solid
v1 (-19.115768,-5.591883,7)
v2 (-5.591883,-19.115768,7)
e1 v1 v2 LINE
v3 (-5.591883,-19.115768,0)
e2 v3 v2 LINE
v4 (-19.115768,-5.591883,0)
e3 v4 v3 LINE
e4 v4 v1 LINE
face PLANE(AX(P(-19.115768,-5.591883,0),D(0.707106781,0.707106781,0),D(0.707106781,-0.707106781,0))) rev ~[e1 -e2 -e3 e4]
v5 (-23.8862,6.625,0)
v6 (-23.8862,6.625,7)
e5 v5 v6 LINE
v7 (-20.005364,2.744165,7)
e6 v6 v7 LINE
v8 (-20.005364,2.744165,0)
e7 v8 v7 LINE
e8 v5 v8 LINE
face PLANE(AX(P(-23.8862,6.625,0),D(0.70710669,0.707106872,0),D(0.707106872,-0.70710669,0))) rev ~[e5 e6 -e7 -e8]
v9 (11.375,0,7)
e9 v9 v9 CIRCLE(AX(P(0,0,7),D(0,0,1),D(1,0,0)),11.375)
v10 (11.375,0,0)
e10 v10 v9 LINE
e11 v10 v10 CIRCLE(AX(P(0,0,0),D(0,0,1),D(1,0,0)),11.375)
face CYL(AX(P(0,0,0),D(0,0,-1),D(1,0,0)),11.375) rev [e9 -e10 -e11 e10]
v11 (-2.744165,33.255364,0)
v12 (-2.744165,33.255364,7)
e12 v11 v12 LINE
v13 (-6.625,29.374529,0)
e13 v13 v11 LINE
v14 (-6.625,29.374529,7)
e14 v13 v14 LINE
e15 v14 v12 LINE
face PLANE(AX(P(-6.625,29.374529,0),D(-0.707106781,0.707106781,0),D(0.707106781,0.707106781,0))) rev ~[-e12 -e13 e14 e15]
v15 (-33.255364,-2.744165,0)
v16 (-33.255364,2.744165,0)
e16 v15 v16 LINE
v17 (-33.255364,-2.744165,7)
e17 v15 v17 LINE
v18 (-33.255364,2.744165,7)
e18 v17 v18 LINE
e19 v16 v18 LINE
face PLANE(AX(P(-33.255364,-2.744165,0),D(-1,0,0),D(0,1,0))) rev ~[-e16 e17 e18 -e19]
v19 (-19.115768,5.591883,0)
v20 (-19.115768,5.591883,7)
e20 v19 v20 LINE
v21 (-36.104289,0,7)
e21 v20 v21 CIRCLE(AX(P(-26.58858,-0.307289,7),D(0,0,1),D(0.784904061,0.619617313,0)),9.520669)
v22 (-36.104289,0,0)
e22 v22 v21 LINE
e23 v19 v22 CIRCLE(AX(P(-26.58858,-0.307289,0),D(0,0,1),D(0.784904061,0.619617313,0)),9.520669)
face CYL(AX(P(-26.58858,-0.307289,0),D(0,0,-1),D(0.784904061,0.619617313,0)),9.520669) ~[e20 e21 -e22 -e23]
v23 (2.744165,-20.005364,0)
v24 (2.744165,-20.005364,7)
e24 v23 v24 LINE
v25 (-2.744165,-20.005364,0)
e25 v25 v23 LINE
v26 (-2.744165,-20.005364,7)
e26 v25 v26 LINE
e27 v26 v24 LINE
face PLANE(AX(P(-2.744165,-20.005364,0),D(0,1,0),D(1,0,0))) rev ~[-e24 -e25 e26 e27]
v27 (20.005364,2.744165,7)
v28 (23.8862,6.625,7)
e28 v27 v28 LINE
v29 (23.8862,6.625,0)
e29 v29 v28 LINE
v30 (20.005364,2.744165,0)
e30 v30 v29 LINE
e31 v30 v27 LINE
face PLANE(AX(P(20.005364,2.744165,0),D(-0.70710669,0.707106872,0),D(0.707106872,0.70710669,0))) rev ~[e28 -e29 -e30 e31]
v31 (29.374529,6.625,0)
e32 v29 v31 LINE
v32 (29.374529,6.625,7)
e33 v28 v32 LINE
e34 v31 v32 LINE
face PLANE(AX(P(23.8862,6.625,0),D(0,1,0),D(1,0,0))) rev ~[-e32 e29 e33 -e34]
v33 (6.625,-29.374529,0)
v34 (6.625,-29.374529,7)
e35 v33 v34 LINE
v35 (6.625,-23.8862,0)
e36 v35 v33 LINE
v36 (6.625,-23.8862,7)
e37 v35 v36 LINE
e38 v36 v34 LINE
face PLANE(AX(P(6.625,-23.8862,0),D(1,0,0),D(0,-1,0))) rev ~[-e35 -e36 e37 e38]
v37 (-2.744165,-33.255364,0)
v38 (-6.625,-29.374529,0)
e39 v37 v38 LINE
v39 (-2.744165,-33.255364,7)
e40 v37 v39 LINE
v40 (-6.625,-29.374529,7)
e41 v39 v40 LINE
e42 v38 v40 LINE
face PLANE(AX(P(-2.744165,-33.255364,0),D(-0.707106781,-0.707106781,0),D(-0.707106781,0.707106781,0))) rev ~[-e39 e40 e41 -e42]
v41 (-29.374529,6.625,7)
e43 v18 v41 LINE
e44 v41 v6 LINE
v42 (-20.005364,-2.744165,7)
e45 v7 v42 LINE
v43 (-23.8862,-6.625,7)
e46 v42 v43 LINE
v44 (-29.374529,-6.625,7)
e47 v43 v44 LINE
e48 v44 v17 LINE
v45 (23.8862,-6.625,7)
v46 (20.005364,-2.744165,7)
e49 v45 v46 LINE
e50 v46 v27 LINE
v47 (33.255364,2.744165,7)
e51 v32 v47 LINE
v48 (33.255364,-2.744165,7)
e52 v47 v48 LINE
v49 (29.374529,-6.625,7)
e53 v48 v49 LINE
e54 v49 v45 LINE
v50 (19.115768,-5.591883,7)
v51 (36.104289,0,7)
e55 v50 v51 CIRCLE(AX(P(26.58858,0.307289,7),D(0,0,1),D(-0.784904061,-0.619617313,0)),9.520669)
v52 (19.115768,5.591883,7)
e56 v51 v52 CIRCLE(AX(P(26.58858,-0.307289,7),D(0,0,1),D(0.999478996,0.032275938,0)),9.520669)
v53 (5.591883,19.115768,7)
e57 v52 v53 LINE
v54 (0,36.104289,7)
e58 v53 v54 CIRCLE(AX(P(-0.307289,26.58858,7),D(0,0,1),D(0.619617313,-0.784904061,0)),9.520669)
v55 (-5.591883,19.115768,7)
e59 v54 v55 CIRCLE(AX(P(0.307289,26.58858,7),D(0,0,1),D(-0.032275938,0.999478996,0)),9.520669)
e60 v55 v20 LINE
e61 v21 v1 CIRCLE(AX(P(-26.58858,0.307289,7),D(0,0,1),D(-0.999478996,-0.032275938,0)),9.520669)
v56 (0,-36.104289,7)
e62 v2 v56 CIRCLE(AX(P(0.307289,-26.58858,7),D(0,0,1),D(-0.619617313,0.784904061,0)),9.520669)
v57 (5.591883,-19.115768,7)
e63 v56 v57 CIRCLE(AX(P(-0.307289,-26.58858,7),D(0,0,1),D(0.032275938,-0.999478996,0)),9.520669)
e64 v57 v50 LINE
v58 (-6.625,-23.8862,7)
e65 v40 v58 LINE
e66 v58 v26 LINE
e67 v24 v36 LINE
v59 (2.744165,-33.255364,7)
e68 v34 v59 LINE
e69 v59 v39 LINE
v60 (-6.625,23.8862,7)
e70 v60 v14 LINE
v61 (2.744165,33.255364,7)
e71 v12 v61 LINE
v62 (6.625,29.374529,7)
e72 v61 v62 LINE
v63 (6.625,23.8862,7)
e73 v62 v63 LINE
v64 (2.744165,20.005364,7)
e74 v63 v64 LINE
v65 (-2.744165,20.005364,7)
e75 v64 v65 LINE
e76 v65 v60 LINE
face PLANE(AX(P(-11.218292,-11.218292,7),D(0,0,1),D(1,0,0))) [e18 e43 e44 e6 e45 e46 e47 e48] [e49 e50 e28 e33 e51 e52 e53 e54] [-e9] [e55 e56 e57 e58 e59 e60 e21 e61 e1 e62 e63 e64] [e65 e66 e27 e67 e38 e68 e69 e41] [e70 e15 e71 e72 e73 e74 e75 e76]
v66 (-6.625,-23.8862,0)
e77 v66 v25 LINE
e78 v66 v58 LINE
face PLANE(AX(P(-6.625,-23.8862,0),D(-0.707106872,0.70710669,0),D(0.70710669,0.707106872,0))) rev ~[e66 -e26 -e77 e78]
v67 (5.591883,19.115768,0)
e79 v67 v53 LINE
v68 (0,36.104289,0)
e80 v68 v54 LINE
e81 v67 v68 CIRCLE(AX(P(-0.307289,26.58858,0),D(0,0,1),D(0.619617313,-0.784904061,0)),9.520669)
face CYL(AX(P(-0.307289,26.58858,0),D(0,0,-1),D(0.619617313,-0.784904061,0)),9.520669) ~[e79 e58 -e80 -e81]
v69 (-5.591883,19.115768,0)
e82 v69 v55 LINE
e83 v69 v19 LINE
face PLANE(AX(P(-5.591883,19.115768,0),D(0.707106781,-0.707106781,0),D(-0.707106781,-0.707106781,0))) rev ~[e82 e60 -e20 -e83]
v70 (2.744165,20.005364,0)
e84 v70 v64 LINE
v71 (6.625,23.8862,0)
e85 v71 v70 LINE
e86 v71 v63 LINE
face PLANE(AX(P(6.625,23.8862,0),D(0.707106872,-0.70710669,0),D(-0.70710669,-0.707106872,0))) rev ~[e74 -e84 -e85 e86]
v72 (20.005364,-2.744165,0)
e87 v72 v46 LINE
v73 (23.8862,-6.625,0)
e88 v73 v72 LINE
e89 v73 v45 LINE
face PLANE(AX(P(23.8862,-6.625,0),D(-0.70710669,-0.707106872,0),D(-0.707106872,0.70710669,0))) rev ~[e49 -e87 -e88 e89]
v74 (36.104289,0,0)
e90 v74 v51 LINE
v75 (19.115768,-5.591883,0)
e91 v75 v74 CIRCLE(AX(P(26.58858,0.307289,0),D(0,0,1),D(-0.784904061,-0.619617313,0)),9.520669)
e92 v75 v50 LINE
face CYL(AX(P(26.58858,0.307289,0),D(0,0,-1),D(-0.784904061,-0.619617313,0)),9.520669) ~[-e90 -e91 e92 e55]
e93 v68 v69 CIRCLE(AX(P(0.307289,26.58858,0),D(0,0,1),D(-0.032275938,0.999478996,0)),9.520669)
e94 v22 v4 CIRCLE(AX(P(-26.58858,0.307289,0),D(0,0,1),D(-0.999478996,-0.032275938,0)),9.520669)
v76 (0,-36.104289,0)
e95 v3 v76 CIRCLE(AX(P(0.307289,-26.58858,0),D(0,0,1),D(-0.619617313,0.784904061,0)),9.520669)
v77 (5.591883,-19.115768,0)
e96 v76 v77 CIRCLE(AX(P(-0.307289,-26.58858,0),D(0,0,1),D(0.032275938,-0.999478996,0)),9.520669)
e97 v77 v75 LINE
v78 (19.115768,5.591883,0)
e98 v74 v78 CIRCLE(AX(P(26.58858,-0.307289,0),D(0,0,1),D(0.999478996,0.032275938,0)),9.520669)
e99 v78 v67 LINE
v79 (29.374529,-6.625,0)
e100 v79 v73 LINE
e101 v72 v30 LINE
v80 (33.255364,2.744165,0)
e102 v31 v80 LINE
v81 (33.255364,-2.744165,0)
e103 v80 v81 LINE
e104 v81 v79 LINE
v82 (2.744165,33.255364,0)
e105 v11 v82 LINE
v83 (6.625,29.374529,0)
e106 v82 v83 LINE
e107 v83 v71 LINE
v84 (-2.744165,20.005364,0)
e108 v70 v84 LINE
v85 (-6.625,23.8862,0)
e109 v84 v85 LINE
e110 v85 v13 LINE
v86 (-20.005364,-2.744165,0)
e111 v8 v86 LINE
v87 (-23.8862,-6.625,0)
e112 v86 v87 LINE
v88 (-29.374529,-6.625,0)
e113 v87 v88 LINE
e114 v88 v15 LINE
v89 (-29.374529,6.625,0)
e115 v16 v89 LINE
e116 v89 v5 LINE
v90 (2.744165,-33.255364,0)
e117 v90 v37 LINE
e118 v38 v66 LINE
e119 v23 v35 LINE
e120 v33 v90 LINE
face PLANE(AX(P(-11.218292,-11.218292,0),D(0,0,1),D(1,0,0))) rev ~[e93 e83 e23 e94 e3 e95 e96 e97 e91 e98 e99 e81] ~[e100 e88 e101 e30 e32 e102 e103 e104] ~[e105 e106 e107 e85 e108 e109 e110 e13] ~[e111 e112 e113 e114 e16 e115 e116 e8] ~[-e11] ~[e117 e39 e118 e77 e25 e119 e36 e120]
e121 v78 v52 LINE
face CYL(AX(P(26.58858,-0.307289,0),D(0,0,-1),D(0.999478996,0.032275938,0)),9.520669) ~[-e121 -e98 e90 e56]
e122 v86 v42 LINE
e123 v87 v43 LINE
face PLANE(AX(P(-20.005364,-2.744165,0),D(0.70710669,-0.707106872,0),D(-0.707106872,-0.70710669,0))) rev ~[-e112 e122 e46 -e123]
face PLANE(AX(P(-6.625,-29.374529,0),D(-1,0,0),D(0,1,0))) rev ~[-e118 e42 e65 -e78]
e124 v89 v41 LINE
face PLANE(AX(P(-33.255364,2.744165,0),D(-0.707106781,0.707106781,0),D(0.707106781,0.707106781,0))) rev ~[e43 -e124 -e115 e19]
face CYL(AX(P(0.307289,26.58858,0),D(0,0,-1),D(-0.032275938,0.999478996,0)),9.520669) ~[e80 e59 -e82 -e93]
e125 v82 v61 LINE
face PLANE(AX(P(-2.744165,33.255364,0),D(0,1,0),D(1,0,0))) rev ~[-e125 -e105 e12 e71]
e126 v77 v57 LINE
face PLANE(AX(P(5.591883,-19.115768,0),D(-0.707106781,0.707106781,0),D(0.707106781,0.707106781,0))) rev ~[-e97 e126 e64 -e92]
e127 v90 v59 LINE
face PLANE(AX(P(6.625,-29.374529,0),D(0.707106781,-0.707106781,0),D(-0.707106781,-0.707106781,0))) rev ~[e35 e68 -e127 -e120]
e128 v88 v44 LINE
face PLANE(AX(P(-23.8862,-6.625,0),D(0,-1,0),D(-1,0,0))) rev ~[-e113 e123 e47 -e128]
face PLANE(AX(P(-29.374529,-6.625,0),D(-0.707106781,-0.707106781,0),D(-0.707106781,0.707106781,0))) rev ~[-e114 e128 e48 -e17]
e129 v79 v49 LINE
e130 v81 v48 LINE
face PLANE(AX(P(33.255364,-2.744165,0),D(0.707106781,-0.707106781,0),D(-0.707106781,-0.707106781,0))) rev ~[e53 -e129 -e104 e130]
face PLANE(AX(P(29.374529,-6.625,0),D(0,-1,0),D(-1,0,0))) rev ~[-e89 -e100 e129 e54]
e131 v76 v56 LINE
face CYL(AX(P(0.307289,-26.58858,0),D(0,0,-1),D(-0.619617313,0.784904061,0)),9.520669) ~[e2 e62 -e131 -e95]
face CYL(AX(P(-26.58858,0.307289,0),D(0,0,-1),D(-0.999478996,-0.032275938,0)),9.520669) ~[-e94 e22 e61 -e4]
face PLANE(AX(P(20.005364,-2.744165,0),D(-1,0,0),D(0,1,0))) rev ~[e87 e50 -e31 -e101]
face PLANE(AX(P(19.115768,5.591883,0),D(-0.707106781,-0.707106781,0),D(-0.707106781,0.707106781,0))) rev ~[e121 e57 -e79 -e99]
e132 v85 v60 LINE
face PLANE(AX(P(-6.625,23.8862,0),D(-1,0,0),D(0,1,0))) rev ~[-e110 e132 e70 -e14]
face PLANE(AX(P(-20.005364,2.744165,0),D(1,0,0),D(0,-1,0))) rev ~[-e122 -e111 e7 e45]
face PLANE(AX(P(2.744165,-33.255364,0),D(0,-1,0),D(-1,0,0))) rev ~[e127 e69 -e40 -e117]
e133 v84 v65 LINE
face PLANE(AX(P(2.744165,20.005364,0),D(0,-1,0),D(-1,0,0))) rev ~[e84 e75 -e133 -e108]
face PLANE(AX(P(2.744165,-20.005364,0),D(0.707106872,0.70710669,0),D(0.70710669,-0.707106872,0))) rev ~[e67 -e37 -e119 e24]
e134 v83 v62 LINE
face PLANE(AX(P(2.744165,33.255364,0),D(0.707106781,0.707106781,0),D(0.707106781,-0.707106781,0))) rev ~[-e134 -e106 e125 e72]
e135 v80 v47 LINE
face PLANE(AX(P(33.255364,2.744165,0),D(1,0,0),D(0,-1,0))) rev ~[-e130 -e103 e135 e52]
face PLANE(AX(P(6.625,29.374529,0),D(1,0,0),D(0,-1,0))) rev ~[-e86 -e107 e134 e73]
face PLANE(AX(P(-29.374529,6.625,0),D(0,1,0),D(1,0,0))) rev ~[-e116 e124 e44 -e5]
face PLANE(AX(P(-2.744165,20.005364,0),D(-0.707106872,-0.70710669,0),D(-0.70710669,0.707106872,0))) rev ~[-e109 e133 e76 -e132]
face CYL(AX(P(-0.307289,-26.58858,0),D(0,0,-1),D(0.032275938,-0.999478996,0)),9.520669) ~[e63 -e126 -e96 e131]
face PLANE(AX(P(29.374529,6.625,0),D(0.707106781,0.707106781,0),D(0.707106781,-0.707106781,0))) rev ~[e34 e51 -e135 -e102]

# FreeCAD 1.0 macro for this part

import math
import FreeCAD as App
import Part
import Sketcher


def add_polygon(sketch, points):
    """Adds a closed chain of lines whose ends are joined by coincident constraints."""
    first, n = sketch.GeometryCount, len(points)
    for a, b in zip(points, points[1:] + points[:1]):
        sketch.addGeometry(Part.LineSegment(App.Vector(*a, 0), App.Vector(*b, 0)), False)
    for i in range(n):
        sketch.addConstraint(Sketcher.Constraint("Coincident", first + i, 2, first + (i + 1) % n, 1))

doc = App.newDocument("Part")
body = doc.addObject("PartDesign::Body", "Body")

# Sketch on XY plane
sketch1 = body.newObject("Sketcher::SketchObject", "Sketch")
sketch1.AttachmentSupport = (doc.getObject("XY_Plane"), [""])
sketch1.MapMode = "FlatFace"
sketch1.addGeometry(Part.LineSegment(App.Vector(5.591883, -19.115768, 0), App.Vector(19.115768, -5.591883, 0)), False)  # 0
sketch1.addGeometry(Part.ArcOfCircle(Part.Circle(App.Vector(26.58858, 0.307289, 0), App.Vector(0, 0, 1), 9.520669), math.radians(-141.711806), math.radians(-1.849596)), False)  # 1
sketch1.addGeometry(Part.ArcOfCircle(Part.Circle(App.Vector(26.58858, -0.307289, 0), App.Vector(0, 0, 1), 9.520669), math.radians(1.849596), math.radians(141.711806)), False)  # 2
sketch1.addGeometry(Part.LineSegment(App.Vector(19.115768, 5.591883, 0), App.Vector(5.591883, 19.115768, 0)), False)  # 3
sketch1.addGeometry(Part.ArcOfCircle(Part.Circle(App.Vector(-0.307289, 26.58858, 0), App.Vector(0, 0, 1), 9.520669), math.radians(-51.711806), math.radians(88.150404)), False)  # 4
sketch1.addGeometry(Part.ArcOfCircle(Part.Circle(App.Vector(0.307289, 26.58858, 0), App.Vector(0, 0, 1), 9.520669), math.radians(91.849596), math.radians(231.711806)), False)  # 5
sketch1.addGeometry(Part.LineSegment(App.Vector(-5.591883, 19.115768, 0), App.Vector(-19.115768, 5.591883, 0)), False)  # 6
sketch1.addGeometry(Part.ArcOfCircle(Part.Circle(App.Vector(-26.58858, -0.307289, 0), App.Vector(0, 0, 1), 9.520669), math.radians(38.288194), math.radians(178.150404)), False)  # 7
sketch1.addGeometry(Part.ArcOfCircle(Part.Circle(App.Vector(-26.58858, 0.307289, 0), App.Vector(0, 0, 1), 9.520669), math.radians(-178.150404), math.radians(-38.288194)), False)  # 8
sketch1.addGeometry(Part.LineSegment(App.Vector(-19.115768, -5.591883, 0), App.Vector(-5.591883, -19.115768, 0)), False)  # 9
sketch1.addGeometry(Part.ArcOfCircle(Part.Circle(App.Vector(0.307289, -26.58858, 0), App.Vector(0, 0, 1), 9.520669), math.radians(128.288194), math.radians(268.150404)), False)  # 10
sketch1.addGeometry(Part.ArcOfCircle(Part.Circle(App.Vector(-0.307289, -26.58858, 0), App.Vector(0, 0, 1), 9.520669), math.radians(-88.150404), math.radians(51.711806)), False)  # 11
add_polygon(sketch1, [(-6.625, -23.8862), (-2.744165, -20.005364), (2.744165, -20.005364), (6.625, -23.8862), (6.625, -29.374529), (2.744165, -33.255364), (-2.744165, -33.255364), (-6.625, -29.374529)])  # lines 12-19
add_polygon(sketch1, [(-23.8862, 6.625), (-20.005364, 2.744165), (-20.005364, -2.744165), (-23.8862, -6.625), (-29.374529, -6.625), (-33.255364, -2.744165), (-33.255364, 2.744165), (-29.374529, 6.625)])  # lines 20-27
sketch1.addGeometry(Part.Circle(App.Vector(0, 0, 0), App.Vector(0, 0, 1), 11.375), False)  # 28
add_polygon(sketch1, [(23.8862, -6.625), (20.005364, -2.744165), (20.005364, 2.744165), (23.8862, 6.625), (29.374529, 6.625), (33.255364, 2.744165), (33.255364, -2.744165), (29.374529, -6.625)])  # lines 29-36
add_polygon(sketch1, [(2.744165, 33.255364), (6.625, 29.374529), (6.625, 23.8862), (2.744165, 20.005364), (-2.744165, 20.005364), (-6.625, 23.8862), (-6.625, 29.374529), (-2.744165, 33.255364)])  # lines 37-44
sketch1.addConstraint(Sketcher.Constraint("Coincident", 0, 2, 1, 1))
sketch1.addConstraint(Sketcher.Constraint("Coincident", 1, 2, 2, 1))
sketch1.addConstraint(Sketcher.Constraint("Coincident", 2, 2, 3, 1))
sketch1.addConstraint(Sketcher.Constraint("Coincident", 3, 2, 4, 1))
sketch1.addConstraint(Sketcher.Constraint("Coincident", 4, 2, 5, 1))
sketch1.addConstraint(Sketcher.Constraint("Coincident", 5, 2, 6, 1))
sketch1.addConstraint(Sketcher.Constraint("Coincident", 6, 2, 7, 1))
sketch1.addConstraint(Sketcher.Constraint("Coincident", 7, 2, 8, 1))
sketch1.addConstraint(Sketcher.Constraint("Coincident", 8, 2, 9, 1))
sketch1.addConstraint(Sketcher.Constraint("Coincident", 9, 2, 10, 1))
sketch1.addConstraint(Sketcher.Constraint("Coincident", 10, 2, 11, 1))
sketch1.addConstraint(Sketcher.Constraint("Coincident", 11, 2, 0, 1))
sketch1.addConstraint(Sketcher.Constraint("Horizontal", 13))
sketch1.addConstraint(Sketcher.Constraint("Vertical", 15))
sketch1.addConstraint(Sketcher.Constraint("Horizontal", 17))
sketch1.addConstraint(Sketcher.Constraint("Vertical", 19))
sketch1.addConstraint(Sketcher.Constraint("Vertical", 21))
sketch1.addConstraint(Sketcher.Constraint("Horizontal", 23))
sketch1.addConstraint(Sketcher.Constraint("Vertical", 25))
sketch1.addConstraint(Sketcher.Constraint("Horizontal", 27))
sketch1.addConstraint(Sketcher.Constraint("Vertical", 30))
sketch1.addConstraint(Sketcher.Constraint("Horizontal", 32))
sketch1.addConstraint(Sketcher.Constraint("Vertical", 34))
sketch1.addConstraint(Sketcher.Constraint("Horizontal", 36))
sketch1.addConstraint(Sketcher.Constraint("Vertical", 38))
sketch1.addConstraint(Sketcher.Constraint("Horizontal", 40))
sketch1.addConstraint(Sketcher.Constraint("Vertical", 42))
sketch1.addConstraint(Sketcher.Constraint("Horizontal", 44))
sketch1.addConstraint(Sketcher.Constraint("Coincident", 28, 3, -1, 1))
sketch1.addConstraint(Sketcher.Constraint("Equal", 1, 2))
sketch1.addConstraint(Sketcher.Constraint("Equal", 2, 4))
sketch1.addConstraint(Sketcher.Constraint("Equal", 4, 5))
sketch1.addConstraint(Sketcher.Constraint("Equal", 5, 7))
sketch1.addConstraint(Sketcher.Constraint("Equal", 7, 8))
sketch1.addConstraint(Sketcher.Constraint("Equal", 8, 10))
sketch1.addConstraint(Sketcher.Constraint("Equal", 10, 11))
sketch1.addConstraint(Sketcher.Constraint("Symmetric", 1, 3, 7, 3, -1, 1))
sketch1.addConstraint(Sketcher.Constraint("Symmetric", 2, 3, 8, 3, -1, 1))
sketch1.addConstraint(Sketcher.Constraint("Symmetric", 4, 3, 10, 3, -1, 1))
sketch1.addConstraint(Sketcher.Constraint("Symmetric", 5, 3, 11, 3, -1, 1))
sketch1.addConstraint(Sketcher.Constraint("Symmetric", 20, 2, 29, 2, -1, 1))
sketch1.addConstraint(Sketcher.Constraint("Symmetric", 22, 2, 31, 2, -1, 1))
sketch1.addConstraint(Sketcher.Constraint("Symmetric", 24, 2, 33, 2, -1, 1))
sketch1.addConstraint(Sketcher.Constraint("Symmetric", 26, 2, 35, 2, -1, 1))
sketch1.addConstraint(Sketcher.Constraint("Symmetric", 18, 2, 37, 2, -1, 1))
sketch1.addConstraint(Sketcher.Constraint("Symmetric", 12, 2, 39, 2, -1, 1))
sketch1.addConstraint(Sketcher.Constraint("Symmetric", 14, 2, 41, 2, -1, 1))
sketch1.addConstraint(Sketcher.Constraint("Symmetric", 16, 2, 43, 2, -1, 1))
sketch1.addConstraint(Sketcher.Constraint("Symmetric", 4, 3, 5, 3, -2))
sketch1.addConstraint(Sketcher.Constraint("Symmetric", 2, 3, 7, 3, -2))
sketch1.addConstraint(Sketcher.Constraint("Symmetric", 15, 2, 18, 2, -2))
sketch1.addConstraint(Sketcher.Constraint("Symmetric", 27, 2, 31, 2, -2))
sketch1.addConstraint(Sketcher.Constraint("Perpendicular", 0, 3))
sketch1.addConstraint(Sketcher.Constraint("Perpendicular", 3, 6))
sketch1.addConstraint(Sketcher.Constraint("Perpendicular", 6, 9))
sketch1.addConstraint(Sketcher.Constraint("Perpendicular", 9, 12))
sketch1.addConstraint(Sketcher.Constraint("Perpendicular", 12, 14))
sketch1.addConstraint(Sketcher.Constraint("Perpendicular", 14, 16))
sketch1.addConstraint(Sketcher.Constraint("Perpendicular", 16, 18))
sketch1.addConstraint(Sketcher.Constraint("Parallel", 18, 20))
sketch1.addConstraint(Sketcher.Constraint("Perpendicular", 20, 22))
sketch1.addConstraint(Sketcher.Constraint("Perpendicular", 22, 24))
sketch1.addConstraint(Sketcher.Constraint("Perpendicular", 24, 26))
sketch1.addConstraint(Sketcher.Constraint("Perpendicular", 26, 29))
sketch1.addConstraint(Sketcher.Constraint("Perpendicular", 29, 31))
sketch1.addConstraint(Sketcher.Constraint("Perpendicular", 31, 33))
sketch1.addConstraint(Sketcher.Constraint("Perpendicular", 33, 35))
sketch1.addConstraint(Sketcher.Constraint("Perpendicular", 35, 37))
sketch1.addConstraint(Sketcher.Constraint("Perpendicular", 37, 39))
sketch1.addConstraint(Sketcher.Constraint("Perpendicular", 39, 41))
sketch1.addConstraint(Sketcher.Constraint("Perpendicular", 41, 43))
sketch1.addConstraint(Sketcher.Constraint("Horizontal", 3, 2, 5, 2))
sketch1.addConstraint(Sketcher.Constraint("Horizontal", 2, 2, 6, 2))
sketch1.addConstraint(Sketcher.Constraint("Horizontal", 0, 2, 8, 2))
sketch1.addConstraint(Sketcher.Constraint("Horizontal", 14, 2, 19, 2))
sketch1.addConstraint(Sketcher.Constraint("Horizontal", 21, 2, 24, 2))
sketch1.addConstraint(Sketcher.Constraint("Horizontal", 20, 2, 25, 2))
sketch1.addConstraint(Sketcher.Constraint("Vertical", 0, 2, 2, 2))
sketch1.addConstraint(Sketcher.Constraint("Vertical", 13, 2, 16, 2))
sketch1.addConstraint(Sketcher.Constraint("Equal", 17, 23))
sketch1.addConstraint(Sketcher.Constraint("Equal", 44, 15))
sketch1.addConstraint(Sketcher.Constraint("Equal", 19, 21))
sketch1.addConstraint(Sketcher.Constraint("Equal", 18, 20))
sketch1.addConstraint(Sketcher.Constraint("Diameter", 28, 22.75))
sketch1.addConstraint(Sketcher.Constraint("Radius", 1, 9.520669))
sketch1.addConstraint(Sketcher.Constraint("DistanceX", -1, 1, 14, 2, 6.625))
sketch1.addConstraint(Sketcher.Constraint("DistanceX", 5, 3, 1, 2, 35.797))
sketch1.addConstraint(Sketcher.Constraint("DistanceX", 13, 1, 13, 2, 5.48833))
sketch1.addConstraint(Sketcher.Constraint("DistanceY", 14, 2, -1, 1, 23.8862))
sketch1.addConstraint(Sketcher.Constraint("DistanceX", 22, 2, -1, 1, 23.8862))
sketch1.addConstraint(Sketcher.Constraint("Distance", 0, 19.125662))
sketch1.addConstraint(Sketcher.Constraint("DistanceX", -1, 1, 1, 3, 26.58858))
sketch1.addConstraint(Sketcher.Constraint("DistanceY", -1, 1, 1, 3, 0.307289))
sketch1.addConstraint(Sketcher.Constraint("DistanceY", -1, 1, 4, 3, 26.58858))
pad1 = body.newObject("PartDesign::Pad", "Pad")
pad1.Profile = sketch1
pad1.Length = 7

doc.recompute()
